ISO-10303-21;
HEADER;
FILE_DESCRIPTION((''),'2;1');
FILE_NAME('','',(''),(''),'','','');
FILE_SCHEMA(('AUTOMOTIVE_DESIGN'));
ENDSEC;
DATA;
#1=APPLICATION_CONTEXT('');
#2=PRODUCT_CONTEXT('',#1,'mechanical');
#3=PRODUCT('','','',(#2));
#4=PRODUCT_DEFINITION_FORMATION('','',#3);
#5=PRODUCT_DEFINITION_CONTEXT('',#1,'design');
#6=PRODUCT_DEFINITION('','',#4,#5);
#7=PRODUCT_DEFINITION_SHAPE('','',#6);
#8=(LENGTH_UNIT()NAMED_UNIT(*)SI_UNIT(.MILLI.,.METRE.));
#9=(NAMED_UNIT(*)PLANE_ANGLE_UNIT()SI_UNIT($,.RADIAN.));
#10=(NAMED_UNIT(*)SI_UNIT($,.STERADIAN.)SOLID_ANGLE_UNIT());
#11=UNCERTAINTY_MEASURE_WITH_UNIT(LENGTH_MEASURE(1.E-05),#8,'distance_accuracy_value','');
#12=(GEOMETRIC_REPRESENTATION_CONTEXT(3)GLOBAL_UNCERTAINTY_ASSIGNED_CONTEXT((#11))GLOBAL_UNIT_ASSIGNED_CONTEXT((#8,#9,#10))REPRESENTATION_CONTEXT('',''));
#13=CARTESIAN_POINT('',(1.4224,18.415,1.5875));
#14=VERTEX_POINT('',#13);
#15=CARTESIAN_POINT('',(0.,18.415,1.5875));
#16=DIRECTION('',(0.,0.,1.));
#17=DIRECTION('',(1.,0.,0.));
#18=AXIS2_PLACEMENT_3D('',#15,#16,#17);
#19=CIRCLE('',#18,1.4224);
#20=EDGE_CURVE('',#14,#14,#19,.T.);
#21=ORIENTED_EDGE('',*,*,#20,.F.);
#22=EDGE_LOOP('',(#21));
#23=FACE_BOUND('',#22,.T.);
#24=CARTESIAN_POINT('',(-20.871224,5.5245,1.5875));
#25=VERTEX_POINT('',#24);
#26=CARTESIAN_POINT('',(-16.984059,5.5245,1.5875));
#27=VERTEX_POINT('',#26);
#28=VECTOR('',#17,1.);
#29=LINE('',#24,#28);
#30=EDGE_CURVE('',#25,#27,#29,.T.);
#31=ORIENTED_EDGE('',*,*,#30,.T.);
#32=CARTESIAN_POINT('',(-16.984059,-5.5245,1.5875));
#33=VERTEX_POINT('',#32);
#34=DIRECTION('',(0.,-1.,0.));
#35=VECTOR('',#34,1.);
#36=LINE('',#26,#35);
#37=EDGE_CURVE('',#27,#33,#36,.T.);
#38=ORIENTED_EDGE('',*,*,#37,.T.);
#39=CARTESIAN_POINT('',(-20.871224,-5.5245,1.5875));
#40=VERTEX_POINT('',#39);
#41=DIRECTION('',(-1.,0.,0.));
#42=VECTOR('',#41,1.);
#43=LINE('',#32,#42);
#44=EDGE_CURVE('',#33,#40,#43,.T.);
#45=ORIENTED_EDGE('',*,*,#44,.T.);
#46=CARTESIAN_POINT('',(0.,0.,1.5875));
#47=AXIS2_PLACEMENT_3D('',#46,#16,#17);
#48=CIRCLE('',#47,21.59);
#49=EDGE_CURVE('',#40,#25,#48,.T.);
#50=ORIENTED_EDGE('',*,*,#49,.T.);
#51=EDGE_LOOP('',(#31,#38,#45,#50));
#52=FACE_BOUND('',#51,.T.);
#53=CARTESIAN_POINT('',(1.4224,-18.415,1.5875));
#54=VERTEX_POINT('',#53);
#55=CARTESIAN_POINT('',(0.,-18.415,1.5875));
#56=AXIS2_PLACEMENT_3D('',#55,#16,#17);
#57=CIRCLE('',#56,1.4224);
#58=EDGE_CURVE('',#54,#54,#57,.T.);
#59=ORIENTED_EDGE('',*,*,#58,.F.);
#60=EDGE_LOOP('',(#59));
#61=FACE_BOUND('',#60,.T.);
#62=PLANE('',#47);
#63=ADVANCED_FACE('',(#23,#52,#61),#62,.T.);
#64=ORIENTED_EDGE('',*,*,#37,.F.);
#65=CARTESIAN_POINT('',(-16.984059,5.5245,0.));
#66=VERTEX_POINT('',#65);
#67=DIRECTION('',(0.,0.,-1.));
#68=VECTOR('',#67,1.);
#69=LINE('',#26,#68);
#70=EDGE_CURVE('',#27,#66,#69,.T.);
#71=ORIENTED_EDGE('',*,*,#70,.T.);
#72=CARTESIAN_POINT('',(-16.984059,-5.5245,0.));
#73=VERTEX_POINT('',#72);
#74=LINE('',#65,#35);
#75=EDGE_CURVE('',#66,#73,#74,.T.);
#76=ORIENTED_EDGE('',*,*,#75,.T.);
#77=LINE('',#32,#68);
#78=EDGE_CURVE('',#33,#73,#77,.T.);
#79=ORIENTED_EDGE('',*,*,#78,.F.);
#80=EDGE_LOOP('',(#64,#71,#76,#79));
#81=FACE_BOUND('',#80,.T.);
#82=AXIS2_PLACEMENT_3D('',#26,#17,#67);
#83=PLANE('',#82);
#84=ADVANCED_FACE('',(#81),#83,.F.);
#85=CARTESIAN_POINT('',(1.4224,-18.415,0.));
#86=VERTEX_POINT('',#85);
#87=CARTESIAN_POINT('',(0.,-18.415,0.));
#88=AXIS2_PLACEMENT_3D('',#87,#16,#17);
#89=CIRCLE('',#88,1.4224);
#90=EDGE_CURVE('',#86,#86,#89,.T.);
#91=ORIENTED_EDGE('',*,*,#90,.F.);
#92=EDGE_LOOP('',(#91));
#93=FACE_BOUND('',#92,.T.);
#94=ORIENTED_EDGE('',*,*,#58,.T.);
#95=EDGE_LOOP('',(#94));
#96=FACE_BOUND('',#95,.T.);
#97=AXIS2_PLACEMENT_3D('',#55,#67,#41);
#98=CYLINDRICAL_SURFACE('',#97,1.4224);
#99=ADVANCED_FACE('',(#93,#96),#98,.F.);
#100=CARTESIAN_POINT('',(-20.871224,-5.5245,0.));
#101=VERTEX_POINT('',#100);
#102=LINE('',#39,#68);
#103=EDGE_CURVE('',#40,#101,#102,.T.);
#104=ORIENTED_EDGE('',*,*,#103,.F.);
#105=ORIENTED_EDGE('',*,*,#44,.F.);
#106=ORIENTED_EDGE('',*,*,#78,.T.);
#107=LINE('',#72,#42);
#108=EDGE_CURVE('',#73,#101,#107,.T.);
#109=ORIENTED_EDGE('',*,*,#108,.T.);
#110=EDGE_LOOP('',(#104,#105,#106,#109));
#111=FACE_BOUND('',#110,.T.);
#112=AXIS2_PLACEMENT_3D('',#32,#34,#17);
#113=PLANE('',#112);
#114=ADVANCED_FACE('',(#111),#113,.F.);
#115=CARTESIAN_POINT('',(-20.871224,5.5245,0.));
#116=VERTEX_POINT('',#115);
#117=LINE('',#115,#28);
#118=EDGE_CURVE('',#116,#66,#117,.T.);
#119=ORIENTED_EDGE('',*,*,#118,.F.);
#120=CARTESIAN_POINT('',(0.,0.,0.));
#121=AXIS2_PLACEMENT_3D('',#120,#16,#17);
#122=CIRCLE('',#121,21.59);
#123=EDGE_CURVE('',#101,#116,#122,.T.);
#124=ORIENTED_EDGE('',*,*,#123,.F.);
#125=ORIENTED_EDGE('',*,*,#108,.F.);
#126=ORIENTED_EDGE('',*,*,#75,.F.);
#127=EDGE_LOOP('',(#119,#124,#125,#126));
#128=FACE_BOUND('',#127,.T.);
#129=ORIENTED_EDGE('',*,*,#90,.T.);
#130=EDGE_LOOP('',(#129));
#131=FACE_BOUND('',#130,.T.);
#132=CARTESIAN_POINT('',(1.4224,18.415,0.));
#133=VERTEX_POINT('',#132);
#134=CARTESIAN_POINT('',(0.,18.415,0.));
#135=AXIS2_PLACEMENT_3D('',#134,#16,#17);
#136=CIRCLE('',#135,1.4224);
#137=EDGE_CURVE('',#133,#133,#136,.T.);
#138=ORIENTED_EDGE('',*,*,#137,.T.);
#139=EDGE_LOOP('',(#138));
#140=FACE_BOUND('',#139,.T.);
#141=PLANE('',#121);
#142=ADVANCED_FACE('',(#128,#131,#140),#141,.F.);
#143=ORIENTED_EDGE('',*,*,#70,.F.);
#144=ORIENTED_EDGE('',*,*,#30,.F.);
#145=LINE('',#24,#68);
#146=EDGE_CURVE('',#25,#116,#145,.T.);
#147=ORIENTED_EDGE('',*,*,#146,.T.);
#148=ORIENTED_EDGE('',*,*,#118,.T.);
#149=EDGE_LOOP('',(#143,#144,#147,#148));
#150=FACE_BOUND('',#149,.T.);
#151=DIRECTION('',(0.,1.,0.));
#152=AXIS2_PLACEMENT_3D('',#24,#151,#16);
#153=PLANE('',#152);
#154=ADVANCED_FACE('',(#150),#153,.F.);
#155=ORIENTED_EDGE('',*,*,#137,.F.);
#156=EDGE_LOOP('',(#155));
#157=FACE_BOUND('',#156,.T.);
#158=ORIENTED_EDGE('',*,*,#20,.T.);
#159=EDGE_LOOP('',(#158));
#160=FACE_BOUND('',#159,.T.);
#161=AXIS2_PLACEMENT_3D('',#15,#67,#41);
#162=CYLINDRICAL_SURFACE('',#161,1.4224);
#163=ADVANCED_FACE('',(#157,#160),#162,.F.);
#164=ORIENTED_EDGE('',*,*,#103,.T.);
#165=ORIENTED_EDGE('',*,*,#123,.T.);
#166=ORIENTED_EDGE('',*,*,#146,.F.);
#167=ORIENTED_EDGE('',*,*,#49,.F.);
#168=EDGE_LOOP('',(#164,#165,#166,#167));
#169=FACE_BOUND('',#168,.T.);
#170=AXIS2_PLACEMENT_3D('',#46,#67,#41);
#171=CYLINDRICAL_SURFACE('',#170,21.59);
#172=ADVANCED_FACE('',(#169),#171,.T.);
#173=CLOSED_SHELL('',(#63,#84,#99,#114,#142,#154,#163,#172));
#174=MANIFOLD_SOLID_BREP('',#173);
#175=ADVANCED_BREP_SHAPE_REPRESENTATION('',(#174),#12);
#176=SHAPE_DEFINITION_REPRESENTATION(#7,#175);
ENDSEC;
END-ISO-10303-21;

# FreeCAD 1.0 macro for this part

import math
import FreeCAD as App
import Part
import Sketcher
Q = App.Units.Quantity

doc = App.newDocument("Part")
body = doc.addObject("PartDesign::Body", "Body")

sketch1 = body.newObject("Sketcher::SketchObject", "Sketch")
sketch1.AttachmentSupport = (doc.getObject("XY_Plane"), [""])
sketch1.MapMode = "FlatFace"
sketch1.addGeometry([
    Part.LineSegment(App.Vector(-20.871224, 5.5245, 0), App.Vector(-16.984059, 5.5245, 0)),
    Part.LineSegment(App.Vector(-16.984059, 5.5245, 0), App.Vector(-16.984059, -5.5245, 0)),
    Part.LineSegment(App.Vector(-16.984059, -5.5245, 0), App.Vector(-20.871224, -5.5245, 0)),
    Part.ArcOfCircle(Part.Circle(App.Vector(0, 0, 0), App.Vector(0, 0, 1), 21.59), math.radians(-165.174125), math.radians(165.174125)),
    Part.Circle(App.Vector(0, -18.415, 0), App.Vector(0, 0, 1), 1.4224),
    Part.Circle(App.Vector(0, 18.415, 0), App.Vector(0, 0, 1), 1.4224),
], False)
sketch1.addConstraint([
    Sketcher.Constraint("Coincident", 0, 2, 1, 1),
    Sketcher.Constraint("Coincident", 1, 2, 2, 1),
    Sketcher.Constraint("Coincident", 2, 2, 3, 1),
    Sketcher.Constraint("Coincident", 3, 2, 0, 1),
    Sketcher.Constraint("Horizontal", 0),
    Sketcher.Constraint("Vertical", 1),
    Sketcher.Constraint("Horizontal", 2),
    Sketcher.Constraint("Coincident", 3, 3, -1, 1),
    Sketcher.Constraint("Equal", 4, 5),
    Sketcher.Constraint("Symmetric", 4, 3, 5, 3, -1, 1),
    Sketcher.Constraint("PointOnObject", 4, 3, -2),
    Sketcher.Constraint("Vertical", 2, 2, 3, 2),
    Sketcher.Constraint("Radius", 3, Q("0.85 in")),
    Sketcher.Constraint("Diameter", 4, Q("0.112 in")),
    Sketcher.Constraint("DistanceY", 1, 2, 1, 1, Q("0.435 in")),
    Sketcher.Constraint("DistanceY", 4, 3, 5, 3, Q("1.45 in")),
    Sketcher.Constraint("DistanceX", 0, 1, 0, 2, 3.887165),
])
pad1 = body.newObject("PartDesign::Pad", "Pad")
pad1.Profile = sketch1
pad1.Length = Q("0.0625 in")

doc.recompute()
